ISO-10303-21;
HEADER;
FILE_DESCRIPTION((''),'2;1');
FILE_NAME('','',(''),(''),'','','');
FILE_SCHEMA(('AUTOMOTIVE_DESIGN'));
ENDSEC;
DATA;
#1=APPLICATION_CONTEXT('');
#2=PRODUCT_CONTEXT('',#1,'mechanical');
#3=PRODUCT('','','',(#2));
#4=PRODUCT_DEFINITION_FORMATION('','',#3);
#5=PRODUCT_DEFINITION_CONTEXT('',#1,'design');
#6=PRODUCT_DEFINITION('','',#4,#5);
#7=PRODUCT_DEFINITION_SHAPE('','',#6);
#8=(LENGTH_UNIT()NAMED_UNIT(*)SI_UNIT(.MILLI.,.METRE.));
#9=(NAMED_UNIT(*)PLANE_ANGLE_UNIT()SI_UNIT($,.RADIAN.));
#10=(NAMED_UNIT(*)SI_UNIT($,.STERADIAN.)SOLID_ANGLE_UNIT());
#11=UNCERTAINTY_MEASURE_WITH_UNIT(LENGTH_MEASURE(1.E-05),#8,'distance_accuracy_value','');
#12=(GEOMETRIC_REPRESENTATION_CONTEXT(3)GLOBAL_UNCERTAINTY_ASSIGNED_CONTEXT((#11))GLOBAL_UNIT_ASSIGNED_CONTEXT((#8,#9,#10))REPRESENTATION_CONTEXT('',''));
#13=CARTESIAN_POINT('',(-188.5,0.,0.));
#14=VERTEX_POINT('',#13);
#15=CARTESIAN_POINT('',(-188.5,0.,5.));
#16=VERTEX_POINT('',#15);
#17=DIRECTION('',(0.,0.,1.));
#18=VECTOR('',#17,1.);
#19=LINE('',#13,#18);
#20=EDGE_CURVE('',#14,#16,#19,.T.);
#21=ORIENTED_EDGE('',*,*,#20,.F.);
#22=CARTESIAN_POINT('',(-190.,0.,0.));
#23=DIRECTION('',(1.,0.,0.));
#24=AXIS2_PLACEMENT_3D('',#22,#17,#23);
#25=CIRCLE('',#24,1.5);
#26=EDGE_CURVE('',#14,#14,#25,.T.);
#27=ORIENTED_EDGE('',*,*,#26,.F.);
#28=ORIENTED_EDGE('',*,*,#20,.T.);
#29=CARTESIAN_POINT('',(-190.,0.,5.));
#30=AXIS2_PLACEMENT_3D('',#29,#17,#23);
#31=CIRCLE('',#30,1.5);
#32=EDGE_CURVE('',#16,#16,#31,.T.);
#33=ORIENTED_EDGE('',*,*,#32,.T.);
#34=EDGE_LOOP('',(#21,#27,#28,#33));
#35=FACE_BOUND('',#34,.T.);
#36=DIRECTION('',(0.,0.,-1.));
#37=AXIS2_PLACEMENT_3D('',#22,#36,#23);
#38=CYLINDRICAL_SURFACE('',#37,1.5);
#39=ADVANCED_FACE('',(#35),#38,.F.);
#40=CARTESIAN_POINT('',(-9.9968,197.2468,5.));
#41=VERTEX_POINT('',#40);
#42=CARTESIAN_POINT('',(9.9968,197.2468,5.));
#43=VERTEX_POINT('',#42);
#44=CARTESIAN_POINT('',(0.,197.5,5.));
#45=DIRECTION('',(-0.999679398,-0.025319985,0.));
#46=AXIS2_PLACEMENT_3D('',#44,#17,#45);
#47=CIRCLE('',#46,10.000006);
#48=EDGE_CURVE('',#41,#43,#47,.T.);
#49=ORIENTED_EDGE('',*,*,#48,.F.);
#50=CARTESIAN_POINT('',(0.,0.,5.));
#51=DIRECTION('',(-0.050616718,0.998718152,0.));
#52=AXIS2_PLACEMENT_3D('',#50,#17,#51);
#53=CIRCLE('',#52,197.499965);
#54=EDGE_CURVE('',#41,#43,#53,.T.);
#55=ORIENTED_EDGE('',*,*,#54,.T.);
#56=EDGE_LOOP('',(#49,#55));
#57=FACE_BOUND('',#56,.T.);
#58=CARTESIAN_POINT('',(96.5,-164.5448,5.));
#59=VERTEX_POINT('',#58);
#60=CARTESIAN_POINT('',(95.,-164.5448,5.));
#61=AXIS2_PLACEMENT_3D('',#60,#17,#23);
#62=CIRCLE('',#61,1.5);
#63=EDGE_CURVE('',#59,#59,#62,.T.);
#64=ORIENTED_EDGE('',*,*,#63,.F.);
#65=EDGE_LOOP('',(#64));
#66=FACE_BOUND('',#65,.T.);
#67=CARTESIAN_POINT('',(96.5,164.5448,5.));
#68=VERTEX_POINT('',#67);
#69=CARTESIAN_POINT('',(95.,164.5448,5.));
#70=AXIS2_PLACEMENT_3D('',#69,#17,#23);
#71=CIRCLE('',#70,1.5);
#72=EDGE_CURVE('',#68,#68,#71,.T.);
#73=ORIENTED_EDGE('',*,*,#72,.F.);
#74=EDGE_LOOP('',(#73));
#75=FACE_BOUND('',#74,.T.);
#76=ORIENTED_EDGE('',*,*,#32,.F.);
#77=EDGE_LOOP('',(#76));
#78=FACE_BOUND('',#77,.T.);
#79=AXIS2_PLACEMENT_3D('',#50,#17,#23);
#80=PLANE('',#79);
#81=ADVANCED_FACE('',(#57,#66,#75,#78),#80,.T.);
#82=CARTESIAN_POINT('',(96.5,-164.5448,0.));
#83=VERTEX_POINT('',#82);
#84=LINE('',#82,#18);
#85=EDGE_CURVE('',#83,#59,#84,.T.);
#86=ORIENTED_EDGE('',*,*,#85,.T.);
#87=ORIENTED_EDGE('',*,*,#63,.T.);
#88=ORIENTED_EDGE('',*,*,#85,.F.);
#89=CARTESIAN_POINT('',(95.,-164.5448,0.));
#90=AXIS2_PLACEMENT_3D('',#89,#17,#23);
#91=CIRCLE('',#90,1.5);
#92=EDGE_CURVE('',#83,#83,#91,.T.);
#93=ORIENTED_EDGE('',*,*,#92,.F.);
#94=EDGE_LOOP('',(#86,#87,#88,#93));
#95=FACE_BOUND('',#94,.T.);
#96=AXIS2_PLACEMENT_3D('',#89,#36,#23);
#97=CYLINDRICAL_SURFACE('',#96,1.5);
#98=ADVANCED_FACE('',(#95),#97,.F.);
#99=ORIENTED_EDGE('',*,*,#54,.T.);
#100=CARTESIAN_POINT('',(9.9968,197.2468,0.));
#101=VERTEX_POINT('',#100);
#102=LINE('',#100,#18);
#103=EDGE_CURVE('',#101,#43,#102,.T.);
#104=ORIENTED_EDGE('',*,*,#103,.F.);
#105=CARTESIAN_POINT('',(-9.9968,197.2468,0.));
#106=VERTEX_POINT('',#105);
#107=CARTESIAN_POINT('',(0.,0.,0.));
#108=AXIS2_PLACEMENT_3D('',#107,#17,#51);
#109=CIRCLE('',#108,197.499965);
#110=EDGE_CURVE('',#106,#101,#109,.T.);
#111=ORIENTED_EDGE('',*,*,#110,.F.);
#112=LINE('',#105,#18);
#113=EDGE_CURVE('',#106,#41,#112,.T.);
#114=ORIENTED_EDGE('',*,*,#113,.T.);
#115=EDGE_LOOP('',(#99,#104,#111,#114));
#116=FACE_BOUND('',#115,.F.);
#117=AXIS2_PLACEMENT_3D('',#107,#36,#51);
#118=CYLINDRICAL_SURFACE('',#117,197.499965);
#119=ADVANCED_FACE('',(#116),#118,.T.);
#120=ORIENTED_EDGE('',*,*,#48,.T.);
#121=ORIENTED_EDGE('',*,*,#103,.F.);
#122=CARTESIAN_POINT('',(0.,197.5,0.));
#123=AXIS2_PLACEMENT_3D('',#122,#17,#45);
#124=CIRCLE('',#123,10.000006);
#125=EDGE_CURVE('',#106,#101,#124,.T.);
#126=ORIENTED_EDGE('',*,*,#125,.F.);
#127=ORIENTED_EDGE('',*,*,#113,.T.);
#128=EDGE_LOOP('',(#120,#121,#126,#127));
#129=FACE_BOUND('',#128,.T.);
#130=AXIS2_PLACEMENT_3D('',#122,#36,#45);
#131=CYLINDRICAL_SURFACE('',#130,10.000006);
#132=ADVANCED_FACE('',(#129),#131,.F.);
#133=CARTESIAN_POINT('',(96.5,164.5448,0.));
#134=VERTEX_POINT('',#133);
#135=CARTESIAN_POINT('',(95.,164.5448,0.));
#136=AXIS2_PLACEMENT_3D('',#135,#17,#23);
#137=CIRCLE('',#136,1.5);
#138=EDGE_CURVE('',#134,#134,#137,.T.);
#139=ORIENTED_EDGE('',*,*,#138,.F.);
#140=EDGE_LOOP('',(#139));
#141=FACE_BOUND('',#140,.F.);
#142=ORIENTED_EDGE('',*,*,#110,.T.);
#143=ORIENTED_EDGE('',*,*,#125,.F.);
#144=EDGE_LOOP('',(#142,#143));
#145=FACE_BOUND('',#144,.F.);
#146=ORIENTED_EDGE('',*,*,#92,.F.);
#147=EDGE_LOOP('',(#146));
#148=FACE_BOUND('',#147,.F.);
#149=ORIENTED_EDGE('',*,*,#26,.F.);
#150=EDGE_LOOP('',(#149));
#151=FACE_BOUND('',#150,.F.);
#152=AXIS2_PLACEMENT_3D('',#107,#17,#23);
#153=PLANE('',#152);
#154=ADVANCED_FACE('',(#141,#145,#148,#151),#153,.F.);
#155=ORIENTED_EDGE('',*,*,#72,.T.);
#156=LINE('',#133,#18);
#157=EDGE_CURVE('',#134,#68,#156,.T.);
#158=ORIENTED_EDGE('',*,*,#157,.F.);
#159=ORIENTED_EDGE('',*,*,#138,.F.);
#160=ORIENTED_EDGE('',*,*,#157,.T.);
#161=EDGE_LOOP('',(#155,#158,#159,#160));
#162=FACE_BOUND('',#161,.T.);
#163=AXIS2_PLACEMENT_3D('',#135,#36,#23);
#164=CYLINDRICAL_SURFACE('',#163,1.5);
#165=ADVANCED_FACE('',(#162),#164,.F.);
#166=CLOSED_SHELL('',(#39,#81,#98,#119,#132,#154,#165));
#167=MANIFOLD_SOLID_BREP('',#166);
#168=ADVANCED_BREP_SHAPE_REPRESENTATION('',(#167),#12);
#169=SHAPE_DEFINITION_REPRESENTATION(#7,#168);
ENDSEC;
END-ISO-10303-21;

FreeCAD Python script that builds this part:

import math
import FreeCAD as App
import Part
import Sketcher

doc = App.newDocument("Part")
params = doc.addObject("Spreadsheet::Sheet", "Params")
for row, (alias, value) in enumerate([
    ("sketch1_diameter", "3 mm"),
    ("sketch1_radius", "10 mm"),
    ("sketch1_radius2", "197.5 mm"),
    ("pad1_length", "5 mm"),
], start=1):
    params.set(f"A{row}", alias)
    params.set(f"B{row}", "=" + value)
    params.setAlias(f"B{row}", alias)

body = doc.addObject("PartDesign::Body", "Body")

# Sketch on XY plane
sketch1 = doc.addObject("Sketcher::SketchObject", "Sketch")
body.addObject(sketch1)
sketch1.AttachmentSupport = (doc.XY_Plane, [""])
sketch1.MapMode = "FlatFace"
sketch1.addGeometry([
    Part.ArcOfCircle(Part.Circle(App.Vector(0, 197.5, 0), App.Vector(0, 0, 1), 10), math.radians(-179), math.radians(-1)),  # 0
    Part.ArcOfCircle(Part.Circle(App.Vector(0, 0, 0), App.Vector(0, 0, 1), 197.5), math.radians(93), math.radians(447)),  # 1
    Part.Circle(App.Vector(95, -164.5, 0), App.Vector(0, 0, 1), 1.5),  # 2
    Part.Circle(App.Vector(-190, 0, 0), App.Vector(0, 0, 1), 1.5),  # 3
    Part.Circle(App.Vector(95, 164.5, 0), App.Vector(0, 0, 1), 1.5),  # 4
], False)
sketch1.addConstraint([
    Sketcher.Constraint("Coincident", 0, 1, 1, 1),
    Sketcher.Constraint("Coincident", 1, 2, 0, 2),
    Sketcher.Constraint("Coincident", 1, 3, -1, 1),
    Sketcher.Constraint("Equal", 2, 3),
    Sketcher.Constraint("Equal", 3, 4),
    Sketcher.Constraint("Symmetric", 2, 3, 4, 3, -1),
    Sketcher.Constraint("PointOnObject", 0, 3, -2),
    Sketcher.Constraint("PointOnObject", 3, 3, -1),
    Sketcher.Constraint("Diameter", 2, 3.0),
    Sketcher.Constraint("Radius", 0, 10.0),
    Sketcher.Constraint("Radius", 1, 197.5),
    Sketcher.Constraint("DistanceX", -1, 1, 2, 3, 95.0),
    Sketcher.Constraint("DistanceX", 3, 3, -1, 1, 190.0),
    Sketcher.Constraint("DistanceY", -1, 1, 0, 3, 197.5),
    Sketcher.Constraint("DistanceY", 4, 3, 0, 1, 32.702),
])
sketch1.setExpression("Constraints[8]", "Params.sketch1_diameter")
sketch1.setExpression("Constraints[9]", "Params.sketch1_radius")
sketch1.setExpression("Constraints[10]", "Params.sketch1_radius2")
pad1 = doc.addObject("PartDesign::Pad", "Pad")
body.addObject(pad1)
pad1.Profile = sketch1
pad1.setExpression("Length", "Params.pad1_length")

doc.recompute()
